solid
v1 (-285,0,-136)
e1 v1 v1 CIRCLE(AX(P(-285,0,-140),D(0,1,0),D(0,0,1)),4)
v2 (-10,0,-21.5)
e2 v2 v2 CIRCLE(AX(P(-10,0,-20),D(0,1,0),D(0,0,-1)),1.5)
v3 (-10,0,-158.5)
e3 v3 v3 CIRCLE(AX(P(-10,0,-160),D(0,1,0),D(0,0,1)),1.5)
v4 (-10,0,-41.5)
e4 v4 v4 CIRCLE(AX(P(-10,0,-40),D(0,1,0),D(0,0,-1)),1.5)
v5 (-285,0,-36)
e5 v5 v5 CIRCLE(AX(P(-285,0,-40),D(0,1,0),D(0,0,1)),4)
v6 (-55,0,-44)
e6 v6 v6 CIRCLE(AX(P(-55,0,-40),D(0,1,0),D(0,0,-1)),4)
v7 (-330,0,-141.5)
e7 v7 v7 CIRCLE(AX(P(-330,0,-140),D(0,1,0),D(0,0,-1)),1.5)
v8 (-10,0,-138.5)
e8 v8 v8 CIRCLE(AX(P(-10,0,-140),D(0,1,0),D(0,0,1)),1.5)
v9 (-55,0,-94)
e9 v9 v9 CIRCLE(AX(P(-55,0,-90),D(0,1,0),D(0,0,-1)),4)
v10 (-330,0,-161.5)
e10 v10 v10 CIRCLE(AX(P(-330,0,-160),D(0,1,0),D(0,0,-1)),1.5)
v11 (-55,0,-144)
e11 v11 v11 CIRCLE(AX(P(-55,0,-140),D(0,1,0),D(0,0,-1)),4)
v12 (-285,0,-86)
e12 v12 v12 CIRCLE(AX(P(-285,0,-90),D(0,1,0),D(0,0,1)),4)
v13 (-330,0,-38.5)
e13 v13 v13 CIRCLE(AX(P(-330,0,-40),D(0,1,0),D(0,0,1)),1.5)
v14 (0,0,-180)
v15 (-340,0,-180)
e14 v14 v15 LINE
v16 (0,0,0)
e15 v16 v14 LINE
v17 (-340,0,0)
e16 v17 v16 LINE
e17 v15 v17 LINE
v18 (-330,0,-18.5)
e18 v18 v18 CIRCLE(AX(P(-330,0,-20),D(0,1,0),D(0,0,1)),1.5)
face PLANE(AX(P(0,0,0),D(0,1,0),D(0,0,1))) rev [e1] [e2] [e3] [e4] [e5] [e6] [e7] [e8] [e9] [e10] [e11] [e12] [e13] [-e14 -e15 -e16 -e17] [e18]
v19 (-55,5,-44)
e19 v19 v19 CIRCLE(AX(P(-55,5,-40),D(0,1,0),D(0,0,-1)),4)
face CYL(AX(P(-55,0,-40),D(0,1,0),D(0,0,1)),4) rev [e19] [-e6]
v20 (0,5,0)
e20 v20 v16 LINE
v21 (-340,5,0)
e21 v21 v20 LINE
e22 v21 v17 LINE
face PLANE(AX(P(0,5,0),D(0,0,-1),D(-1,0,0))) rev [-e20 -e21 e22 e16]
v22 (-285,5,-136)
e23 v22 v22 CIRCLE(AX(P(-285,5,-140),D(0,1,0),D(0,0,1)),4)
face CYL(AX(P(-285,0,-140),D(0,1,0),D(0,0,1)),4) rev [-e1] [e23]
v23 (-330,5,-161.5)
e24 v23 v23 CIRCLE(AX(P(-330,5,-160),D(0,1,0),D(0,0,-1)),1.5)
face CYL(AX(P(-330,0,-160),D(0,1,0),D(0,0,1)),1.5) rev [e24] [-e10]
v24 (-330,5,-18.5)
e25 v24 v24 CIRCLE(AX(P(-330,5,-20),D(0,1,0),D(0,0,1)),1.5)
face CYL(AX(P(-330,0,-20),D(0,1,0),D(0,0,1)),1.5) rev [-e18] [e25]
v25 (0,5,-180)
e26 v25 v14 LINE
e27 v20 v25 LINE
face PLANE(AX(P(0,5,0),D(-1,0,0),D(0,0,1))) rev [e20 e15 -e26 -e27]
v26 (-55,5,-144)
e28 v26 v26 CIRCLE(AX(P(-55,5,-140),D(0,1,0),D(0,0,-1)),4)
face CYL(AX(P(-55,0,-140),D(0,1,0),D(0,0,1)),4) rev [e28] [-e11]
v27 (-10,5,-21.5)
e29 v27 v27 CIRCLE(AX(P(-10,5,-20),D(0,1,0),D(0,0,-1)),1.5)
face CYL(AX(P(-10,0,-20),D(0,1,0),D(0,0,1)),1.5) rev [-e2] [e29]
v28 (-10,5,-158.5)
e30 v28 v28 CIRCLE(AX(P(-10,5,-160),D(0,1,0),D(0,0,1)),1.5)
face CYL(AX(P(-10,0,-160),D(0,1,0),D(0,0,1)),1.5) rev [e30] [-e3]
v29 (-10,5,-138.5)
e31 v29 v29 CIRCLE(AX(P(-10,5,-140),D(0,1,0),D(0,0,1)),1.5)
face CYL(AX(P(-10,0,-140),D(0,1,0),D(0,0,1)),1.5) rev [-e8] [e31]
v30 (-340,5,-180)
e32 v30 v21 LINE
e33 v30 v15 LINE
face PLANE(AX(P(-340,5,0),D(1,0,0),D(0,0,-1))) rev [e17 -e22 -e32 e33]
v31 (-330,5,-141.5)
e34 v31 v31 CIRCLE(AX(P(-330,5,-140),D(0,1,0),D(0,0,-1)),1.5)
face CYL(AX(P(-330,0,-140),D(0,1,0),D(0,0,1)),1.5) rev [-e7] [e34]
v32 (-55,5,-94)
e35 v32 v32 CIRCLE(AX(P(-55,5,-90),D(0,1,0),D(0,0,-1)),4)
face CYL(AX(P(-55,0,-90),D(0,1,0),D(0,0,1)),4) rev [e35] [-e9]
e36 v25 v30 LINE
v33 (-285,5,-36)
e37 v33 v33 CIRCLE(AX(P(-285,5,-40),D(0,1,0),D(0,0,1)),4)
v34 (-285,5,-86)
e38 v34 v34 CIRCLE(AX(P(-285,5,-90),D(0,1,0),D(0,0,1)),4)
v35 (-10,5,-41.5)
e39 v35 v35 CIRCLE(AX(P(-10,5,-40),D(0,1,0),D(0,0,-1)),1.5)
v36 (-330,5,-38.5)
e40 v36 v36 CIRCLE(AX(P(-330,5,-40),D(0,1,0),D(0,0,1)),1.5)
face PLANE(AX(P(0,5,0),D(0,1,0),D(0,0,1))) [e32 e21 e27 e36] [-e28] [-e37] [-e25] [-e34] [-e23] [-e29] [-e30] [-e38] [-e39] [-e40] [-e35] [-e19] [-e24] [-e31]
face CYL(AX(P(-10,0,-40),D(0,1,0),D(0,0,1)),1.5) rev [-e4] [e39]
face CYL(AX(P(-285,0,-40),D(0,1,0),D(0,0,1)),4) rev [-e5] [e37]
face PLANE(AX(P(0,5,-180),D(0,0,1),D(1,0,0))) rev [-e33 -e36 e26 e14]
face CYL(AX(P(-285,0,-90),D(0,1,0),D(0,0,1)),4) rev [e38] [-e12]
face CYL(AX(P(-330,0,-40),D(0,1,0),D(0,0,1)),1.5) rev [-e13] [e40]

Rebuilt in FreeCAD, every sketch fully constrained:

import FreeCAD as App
import Part
import Sketcher

V = App.Vector


def add_polygon(sketch, points):
    """Adds a closed chain of lines whose ends are joined by coincident constraints."""
    first, n = sketch.GeometryCount, len(points)
    for a, b in zip(points, points[1:] + points[:1]):
        sketch.addGeometry(Part.LineSegment(App.Vector(*a, 0), App.Vector(*b, 0)), False)
    for i in range(n):
        sketch.addConstraint(Sketcher.Constraint("Coincident", first + i, 2, first + (i + 1) % n, 1))

doc = App.newDocument("Part")
body = doc.addObject("PartDesign::Body", "Body")

# Sketch on XZ plane
sketch1 = body.newObject("Sketcher::SketchObject", "Sketch")
sketch1.AttachmentSupport = (doc.getObject("XZ_Plane"), [""])
sketch1.MapMode = "FlatFace"
add_polygon(sketch1, [(-340, -180), (-340, 0), (0, 0), (0, -180)])  # lines 0-3
sketch1.addConstraint(Sketcher.Constraint("Vertical", 0))
sketch1.addConstraint(Sketcher.Constraint("Horizontal", 1))
sketch1.addConstraint(Sketcher.Constraint("Vertical", 2))
sketch1.addConstraint(Sketcher.Constraint("Horizontal", 3))
sketch1.addConstraint(Sketcher.Constraint("Coincident", 1, 2, -1, 1))
sketch1.addConstraint(Sketcher.Constraint("DistanceX", 1, 1, 1, 2, 340.0))
sketch1.addConstraint(Sketcher.Constraint("DistanceY", 0, 1, 0, 2, 180.0))
pad1 = body.newObject("PartDesign::Pad", "Pad")
pad1.Profile = sketch1
pad1.Length = 5
pad1.Reversed = True

# Sketch on XZ plane
sketch2 = body.newObject("Sketcher::SketchObject", "Sketch001")
sketch2.AttachmentSupport = (doc.getObject("XZ_Plane"), [""])
sketch2.MapMode = "FlatFace"
sketch2.AttachmentOffset = App.Placement(V(0, 0, -5), App.Rotation())
sketch2.addGeometry(Part.Circle(V(-330, -20, 0), V(0, 0, 1), 1.5), False)
sketch2.addGeometry(Part.Circle(V(-330, -40, 0), V(0, 0, 1), 1.5), False)
sketch2.addGeometry(Part.Circle(V(-330, -140, 0), V(0, 0, 1), 1.5), False)
sketch2.addGeometry(Part.Circle(V(-330, -160, 0), V(0, 0, 1), 1.5), False)
sketch2.addGeometry(Part.Circle(V(-10, -160, 0), V(0, 0, 1), 1.5), False)
sketch2.addGeometry(Part.Circle(V(-10, -140, 0), V(0, 0, 1), 1.5), False)
sketch2.addGeometry(Part.Circle(V(-10, -40, 0), V(0, 0, 1), 1.5), False)
sketch2.addGeometry(Part.Circle(V(-10, -20, 0), V(0, 0, 1), 1.5), False)
sketch2.addConstraint(Sketcher.Constraint("Equal", 0, 1))
sketch2.addConstraint(Sketcher.Constraint("Equal", 1, 2))
sketch2.addConstraint(Sketcher.Constraint("Equal", 2, 3))
sketch2.addConstraint(Sketcher.Constraint("Equal", 3, 4))
sketch2.addConstraint(Sketcher.Constraint("Equal", 4, 5))
sketch2.addConstraint(Sketcher.Constraint("Equal", 5, 6))
sketch2.addConstraint(Sketcher.Constraint("Equal", 6, 7))
sketch2.addConstraint(Sketcher.Constraint("Horizontal", 3, 3, 4, 3))
sketch2.addConstraint(Sketcher.Constraint("Horizontal", 2, 3, 5, 3))
sketch2.addConstraint(Sketcher.Constraint("Horizontal", 1, 3, 6, 3))
sketch2.addConstraint(Sketcher.Constraint("Horizontal", 0, 3, 7, 3))
sketch2.addConstraint(Sketcher.Constraint("Vertical", 0, 3, 1, 3))
sketch2.addConstraint(Sketcher.Constraint("Vertical", 1, 3, 2, 3))
sketch2.addConstraint(Sketcher.Constraint("Vertical", 2, 3, 3, 3))
sketch2.addConstraint(Sketcher.Constraint("Vertical", 4, 3, 5, 3))
sketch2.addConstraint(Sketcher.Constraint("Vertical", 5, 3, 6, 3))
sketch2.addConstraint(Sketcher.Constraint("Vertical", 6, 3, 7, 3))
sketch2.addConstraint(Sketcher.Constraint("Diameter", 0, 3.0))
sketch2.addConstraint(Sketcher.Constraint("DistanceX", 0, 3, -1, 1, 330.0))
sketch2.addConstraint(Sketcher.Constraint("DistanceY", 0, 3, -1, 1, 20.0))
sketch2.addConstraint(Sketcher.Constraint("DistanceY", 1, 3, -1, 1, 40.0))
sketch2.addConstraint(Sketcher.Constraint("DistanceY", 2, 3, -1, 1, 140.0))
sketch2.addConstraint(Sketcher.Constraint("DistanceY", 3, 3, -1, 1, 160.0))
sketch2.addConstraint(Sketcher.Constraint("DistanceX", 4, 3, -1, 1, 10.0))
pocket1 = body.newObject("PartDesign::Pocket", "Pocket")
pocket1.Profile = sketch2
pocket1.Length = 5
pocket1.Reversed = True

# Sketch on XZ plane
sketch3 = body.newObject("Sketcher::SketchObject", "Sketch002")
sketch3.AttachmentSupport = (doc.getObject("XZ_Plane"), [""])
sketch3.MapMode = "FlatFace"
sketch3.AttachmentOffset = App.Placement(V(0, 0, -5), App.Rotation())
sketch3.addGeometry(Part.Circle(V(-285, -140, 0), V(0, 0, 1), 4), False)
sketch3.addGeometry(Part.Circle(V(-285, -90, 0), V(0, 0, 1), 4), False)
sketch3.addGeometry(Part.Circle(V(-285, -40, 0), V(0, 0, 1), 4), False)
sketch3.addGeometry(Part.Circle(V(-55, -40, 0), V(0, 0, 1), 4), False)
sketch3.addGeometry(Part.Circle(V(-55, -90, 0), V(0, 0, 1), 4), False)
sketch3.addGeometry(Part.Circle(V(-55, -140, 0), V(0, 0, 1), 4), False)
sketch3.addConstraint(Sketcher.Constraint("Equal", 0, 1))
sketch3.addConstraint(Sketcher.Constraint("Equal", 1, 2))
sketch3.addConstraint(Sketcher.Constraint("Equal", 2, 3))
sketch3.addConstraint(Sketcher.Constraint("Equal", 3, 4))
sketch3.addConstraint(Sketcher.Constraint("Equal", 4, 5))
sketch3.addConstraint(Sketcher.Constraint("Horizontal", 2, 3, 3, 3))
sketch3.addConstraint(Sketcher.Constraint("Horizontal", 1, 3, 4, 3))
sketch3.addConstraint(Sketcher.Constraint("Horizontal", 0, 3, 5, 3))
sketch3.addConstraint(Sketcher.Constraint("Vertical", 0, 3, 1, 3))
sketch3.addConstraint(Sketcher.Constraint("Vertical", 1, 3, 2, 3))
sketch3.addConstraint(Sketcher.Constraint("Vertical", 3, 3, 4, 3))
sketch3.addConstraint(Sketcher.Constraint("Vertical", 4, 3, 5, 3))
sketch3.addConstraint(Sketcher.Constraint("Diameter", 0, 8.0))
sketch3.addConstraint(Sketcher.Constraint("DistanceX", 0, 3, -1, 1, 285.0))
sketch3.addConstraint(Sketcher.Constraint("DistanceY", 0, 3, -1, 1, 140.0))
sketch3.addConstraint(Sketcher.Constraint("DistanceY", 1, 3, -1, 1, 90.0))
sketch3.addConstraint(Sketcher.Constraint("DistanceY", 2, 3, -1, 1, 40.0))
sketch3.addConstraint(Sketcher.Constraint("DistanceX", 3, 3, -1, 1, 55.0))
pocket2 = body.newObject("PartDesign::Pocket", "Pocket001")
pocket2.Profile = sketch3
pocket2.Length = 5
pocket2.Reversed = True

doc.recompute()
